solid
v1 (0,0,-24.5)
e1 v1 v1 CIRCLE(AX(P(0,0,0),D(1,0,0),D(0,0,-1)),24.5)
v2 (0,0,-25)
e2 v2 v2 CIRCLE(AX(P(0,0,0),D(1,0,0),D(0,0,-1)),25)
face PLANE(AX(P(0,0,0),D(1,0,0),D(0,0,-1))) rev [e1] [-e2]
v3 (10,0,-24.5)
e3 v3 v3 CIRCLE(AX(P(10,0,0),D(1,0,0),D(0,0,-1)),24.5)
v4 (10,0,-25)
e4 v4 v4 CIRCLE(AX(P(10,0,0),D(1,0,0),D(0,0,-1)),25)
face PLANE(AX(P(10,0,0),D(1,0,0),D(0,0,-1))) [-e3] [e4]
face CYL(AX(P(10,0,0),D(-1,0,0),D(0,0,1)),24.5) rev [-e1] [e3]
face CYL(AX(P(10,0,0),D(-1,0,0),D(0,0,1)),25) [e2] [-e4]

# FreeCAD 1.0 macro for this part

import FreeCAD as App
import Part
import Sketcher

V = App.Vector

doc = App.newDocument("Part")
body = doc.addObject("PartDesign::Body", "Body")

# Sketch on YZ plane
sketch1 = body.newObject("Sketcher::SketchObject", "Sketch")
sketch1.AttachmentSupport = (doc.getObject("YZ_Plane"), [""])
sketch1.MapMode = "FlatFace"
sketch1.addGeometry(Part.Circle(V(0, 0, 0), V(0, 0, 1), 25), False)
sketch1.addGeometry(Part.Circle(V(0, 0, 0), V(0, 0, 1), 24.5), False)
sketch1.addConstraint(Sketcher.Constraint("Coincident", 0, 3, -1, 1))
sketch1.addConstraint(Sketcher.Constraint("Coincident", 1, 3, -1, 1))
sketch1.addConstraint(Sketcher.Constraint("Diameter", 0, 50.0))
sketch1.addConstraint(Sketcher.Constraint("Diameter", 1, 49.0))
pad1 = body.newObject("PartDesign::Pad", "Pad")
pad1.Profile = sketch1
pad1.Length = 10

doc.recompute()
